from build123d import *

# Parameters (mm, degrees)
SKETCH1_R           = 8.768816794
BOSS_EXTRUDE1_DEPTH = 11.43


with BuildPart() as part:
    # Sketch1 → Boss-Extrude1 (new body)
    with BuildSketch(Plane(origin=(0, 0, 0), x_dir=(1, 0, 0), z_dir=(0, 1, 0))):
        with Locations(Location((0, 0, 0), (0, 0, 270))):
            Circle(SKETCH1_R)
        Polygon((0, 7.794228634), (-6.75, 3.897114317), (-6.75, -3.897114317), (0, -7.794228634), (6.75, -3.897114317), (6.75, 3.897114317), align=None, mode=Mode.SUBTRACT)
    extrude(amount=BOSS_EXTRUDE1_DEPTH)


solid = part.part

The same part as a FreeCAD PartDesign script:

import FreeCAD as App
import Part
import Sketcher
Q = App.Units.Quantity

doc = App.newDocument("Part")
body = doc.addObject("PartDesign::Body", "Body")

# Sketch on XZ plane
sketch1 = body.newObject("Sketcher::SketchObject", "Sketch")
sketch1.AttachmentSupport = (doc.getObject("XZ_Plane"), [""])
sketch1.MapMode = "FlatFace"
sketch1.addGeometry([
    Part.Circle(App.Vector(0, 0, 0), App.Vector(0, 0, 1), 8.768817),  # 0
    Part.LineSegment(App.Vector(-6.75, -3.897114, 0), App.Vector(0, -7.794229, 0)),  # 1
    Part.LineSegment(App.Vector(0, -7.794229, 0), App.Vector(6.75, -3.897114, 0)),  # 2
    Part.LineSegment(App.Vector(6.75, -3.897114, 0), App.Vector(6.75, 3.897114, 0)),  # 3
    Part.LineSegment(App.Vector(6.75, 3.897114, 0), App.Vector(0, 7.794229, 0)),  # 4
    Part.LineSegment(App.Vector(0, 7.794229, 0), App.Vector(-6.75, 3.897114, 0)),  # 5
    Part.LineSegment(App.Vector(-6.75, 3.897114, 0), App.Vector(-6.75, -3.897114, 0)),  # 6
], False)
sketch1.addConstraint([
    Sketcher.Constraint("Coincident", 1, 2, 2, 1),
    Sketcher.Constraint("Coincident", 2, 2, 3, 1),
    Sketcher.Constraint("Coincident", 3, 2, 4, 1),
    Sketcher.Constraint("Coincident", 4, 2, 5, 1),
    Sketcher.Constraint("Coincident", 5, 2, 6, 1),
    Sketcher.Constraint("Coincident", 6, 2, 1, 1),
    Sketcher.Constraint("Vertical", 3),
    Sketcher.Constraint("Vertical", 6),
    Sketcher.Constraint("Coincident", 0, 3, -1, 1),
    Sketcher.Constraint("Symmetric", 1, 2, 4, 2, -1, 1),
    Sketcher.Constraint("Symmetric", 2, 2, 5, 2, -1, 1),
    Sketcher.Constraint("PointOnObject", 1, 2, -2),
    Sketcher.Constraint("Parallel", 1, 4),
    Sketcher.Constraint("Horizontal", 3, 2, 5, 2),
    Sketcher.Constraint("Angle", 1, Q("-30 deg")),
    Sketcher.Constraint("Diameter", 0, Q("17.537634 mm")),
    Sketcher.Constraint("DistanceY", 3, 1, 3, 2, Q("7.794229 mm")),
    Sketcher.Constraint("DistanceX", -1, 1, 2, 2, Q("6.75 mm")),
])
pad1 = body.newObject("PartDesign::Pad", "Pad")
pad1.Profile = sketch1
pad1.Length = Q("0.45 in")
pad1.Reversed = True

doc.recompute()
